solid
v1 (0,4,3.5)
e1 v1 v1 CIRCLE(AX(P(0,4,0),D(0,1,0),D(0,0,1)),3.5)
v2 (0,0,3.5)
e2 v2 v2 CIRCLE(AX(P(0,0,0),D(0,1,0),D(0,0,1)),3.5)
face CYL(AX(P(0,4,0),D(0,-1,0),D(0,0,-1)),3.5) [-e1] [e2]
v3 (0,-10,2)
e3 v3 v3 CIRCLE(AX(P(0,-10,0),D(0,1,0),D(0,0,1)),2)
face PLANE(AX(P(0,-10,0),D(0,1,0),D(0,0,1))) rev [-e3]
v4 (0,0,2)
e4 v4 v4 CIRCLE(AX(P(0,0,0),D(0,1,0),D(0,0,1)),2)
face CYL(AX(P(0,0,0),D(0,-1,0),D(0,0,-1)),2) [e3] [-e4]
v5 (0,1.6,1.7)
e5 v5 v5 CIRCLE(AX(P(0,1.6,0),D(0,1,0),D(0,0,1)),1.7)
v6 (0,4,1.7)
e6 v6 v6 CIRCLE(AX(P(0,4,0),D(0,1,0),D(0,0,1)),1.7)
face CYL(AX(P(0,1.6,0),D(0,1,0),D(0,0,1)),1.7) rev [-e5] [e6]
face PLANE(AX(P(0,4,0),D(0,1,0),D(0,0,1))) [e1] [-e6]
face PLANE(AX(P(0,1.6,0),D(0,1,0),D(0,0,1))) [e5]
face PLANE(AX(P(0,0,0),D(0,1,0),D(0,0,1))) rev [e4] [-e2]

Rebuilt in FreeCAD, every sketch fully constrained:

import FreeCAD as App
import Part
import Sketcher

doc = App.newDocument("Part")
body = doc.addObject("PartDesign::Body", "Body")

# Sketch on XZ plane
sketch1 = body.newObject("Sketcher::SketchObject", "Sketch")
sketch1.AttachmentSupport = (doc.getObject("XZ_Plane"), [""])
sketch1.MapMode = "FlatFace"
sketch1.addGeometry(Part.Circle(App.Vector(0, 0, 0), App.Vector(0, 0, 1), 3.5), False)
sketch1.addConstraint([
    Sketcher.Constraint("Coincident", 0, 3, -1, 1),
    Sketcher.Constraint("Diameter", 0, 7.0),
])
pad1 = body.newObject("PartDesign::Pad", "Pad")
pad1.Profile = sketch1
pad1.Length = 4
pad1.Reversed = True

# Sketch on XZ plane
sketch2 = body.newObject("Sketcher::SketchObject", "Sketch001")
sketch2.AttachmentSupport = (doc.getObject("XZ_Plane"), [""])
sketch2.MapMode = "FlatFace"
sketch2.AttachmentOffset = App.Placement(App.Vector(0, 0, 10), App.Rotation())
sketch2.addGeometry(Part.Circle(App.Vector(0, 0, 0), App.Vector(0, 0, 1), 2), False)
sketch2.addConstraint([
    Sketcher.Constraint("Coincident", 0, 3, -1, 1),
    Sketcher.Constraint("Diameter", 0, 4.0),
])
pad2 = body.newObject("PartDesign::Pad", "Pad001")
pad2.Profile = sketch2
pad2.Length = 10
pad2.Reversed = True

# Sketch on XZ plane
sketch3 = body.newObject("Sketcher::SketchObject", "Sketch002")
sketch3.AttachmentSupport = (doc.getObject("XZ_Plane"), [""])
sketch3.MapMode = "FlatFace"
sketch3.AttachmentOffset = App.Placement(App.Vector(0, 0, -4), App.Rotation())
sketch3.addGeometry(Part.Circle(App.Vector(0, 0, 0), App.Vector(0, 0, 1), 1.7), False)
sketch3.addConstraint([
    Sketcher.Constraint("Coincident", 0, 3, -1, 1),
    Sketcher.Constraint("Diameter", 0, 3.4),
])
pocket1 = body.newObject("PartDesign::Pocket", "Pocket")
pocket1.Profile = sketch3
pocket1.Length = 2.4
pocket1.Reversed = True

doc.recompute()
